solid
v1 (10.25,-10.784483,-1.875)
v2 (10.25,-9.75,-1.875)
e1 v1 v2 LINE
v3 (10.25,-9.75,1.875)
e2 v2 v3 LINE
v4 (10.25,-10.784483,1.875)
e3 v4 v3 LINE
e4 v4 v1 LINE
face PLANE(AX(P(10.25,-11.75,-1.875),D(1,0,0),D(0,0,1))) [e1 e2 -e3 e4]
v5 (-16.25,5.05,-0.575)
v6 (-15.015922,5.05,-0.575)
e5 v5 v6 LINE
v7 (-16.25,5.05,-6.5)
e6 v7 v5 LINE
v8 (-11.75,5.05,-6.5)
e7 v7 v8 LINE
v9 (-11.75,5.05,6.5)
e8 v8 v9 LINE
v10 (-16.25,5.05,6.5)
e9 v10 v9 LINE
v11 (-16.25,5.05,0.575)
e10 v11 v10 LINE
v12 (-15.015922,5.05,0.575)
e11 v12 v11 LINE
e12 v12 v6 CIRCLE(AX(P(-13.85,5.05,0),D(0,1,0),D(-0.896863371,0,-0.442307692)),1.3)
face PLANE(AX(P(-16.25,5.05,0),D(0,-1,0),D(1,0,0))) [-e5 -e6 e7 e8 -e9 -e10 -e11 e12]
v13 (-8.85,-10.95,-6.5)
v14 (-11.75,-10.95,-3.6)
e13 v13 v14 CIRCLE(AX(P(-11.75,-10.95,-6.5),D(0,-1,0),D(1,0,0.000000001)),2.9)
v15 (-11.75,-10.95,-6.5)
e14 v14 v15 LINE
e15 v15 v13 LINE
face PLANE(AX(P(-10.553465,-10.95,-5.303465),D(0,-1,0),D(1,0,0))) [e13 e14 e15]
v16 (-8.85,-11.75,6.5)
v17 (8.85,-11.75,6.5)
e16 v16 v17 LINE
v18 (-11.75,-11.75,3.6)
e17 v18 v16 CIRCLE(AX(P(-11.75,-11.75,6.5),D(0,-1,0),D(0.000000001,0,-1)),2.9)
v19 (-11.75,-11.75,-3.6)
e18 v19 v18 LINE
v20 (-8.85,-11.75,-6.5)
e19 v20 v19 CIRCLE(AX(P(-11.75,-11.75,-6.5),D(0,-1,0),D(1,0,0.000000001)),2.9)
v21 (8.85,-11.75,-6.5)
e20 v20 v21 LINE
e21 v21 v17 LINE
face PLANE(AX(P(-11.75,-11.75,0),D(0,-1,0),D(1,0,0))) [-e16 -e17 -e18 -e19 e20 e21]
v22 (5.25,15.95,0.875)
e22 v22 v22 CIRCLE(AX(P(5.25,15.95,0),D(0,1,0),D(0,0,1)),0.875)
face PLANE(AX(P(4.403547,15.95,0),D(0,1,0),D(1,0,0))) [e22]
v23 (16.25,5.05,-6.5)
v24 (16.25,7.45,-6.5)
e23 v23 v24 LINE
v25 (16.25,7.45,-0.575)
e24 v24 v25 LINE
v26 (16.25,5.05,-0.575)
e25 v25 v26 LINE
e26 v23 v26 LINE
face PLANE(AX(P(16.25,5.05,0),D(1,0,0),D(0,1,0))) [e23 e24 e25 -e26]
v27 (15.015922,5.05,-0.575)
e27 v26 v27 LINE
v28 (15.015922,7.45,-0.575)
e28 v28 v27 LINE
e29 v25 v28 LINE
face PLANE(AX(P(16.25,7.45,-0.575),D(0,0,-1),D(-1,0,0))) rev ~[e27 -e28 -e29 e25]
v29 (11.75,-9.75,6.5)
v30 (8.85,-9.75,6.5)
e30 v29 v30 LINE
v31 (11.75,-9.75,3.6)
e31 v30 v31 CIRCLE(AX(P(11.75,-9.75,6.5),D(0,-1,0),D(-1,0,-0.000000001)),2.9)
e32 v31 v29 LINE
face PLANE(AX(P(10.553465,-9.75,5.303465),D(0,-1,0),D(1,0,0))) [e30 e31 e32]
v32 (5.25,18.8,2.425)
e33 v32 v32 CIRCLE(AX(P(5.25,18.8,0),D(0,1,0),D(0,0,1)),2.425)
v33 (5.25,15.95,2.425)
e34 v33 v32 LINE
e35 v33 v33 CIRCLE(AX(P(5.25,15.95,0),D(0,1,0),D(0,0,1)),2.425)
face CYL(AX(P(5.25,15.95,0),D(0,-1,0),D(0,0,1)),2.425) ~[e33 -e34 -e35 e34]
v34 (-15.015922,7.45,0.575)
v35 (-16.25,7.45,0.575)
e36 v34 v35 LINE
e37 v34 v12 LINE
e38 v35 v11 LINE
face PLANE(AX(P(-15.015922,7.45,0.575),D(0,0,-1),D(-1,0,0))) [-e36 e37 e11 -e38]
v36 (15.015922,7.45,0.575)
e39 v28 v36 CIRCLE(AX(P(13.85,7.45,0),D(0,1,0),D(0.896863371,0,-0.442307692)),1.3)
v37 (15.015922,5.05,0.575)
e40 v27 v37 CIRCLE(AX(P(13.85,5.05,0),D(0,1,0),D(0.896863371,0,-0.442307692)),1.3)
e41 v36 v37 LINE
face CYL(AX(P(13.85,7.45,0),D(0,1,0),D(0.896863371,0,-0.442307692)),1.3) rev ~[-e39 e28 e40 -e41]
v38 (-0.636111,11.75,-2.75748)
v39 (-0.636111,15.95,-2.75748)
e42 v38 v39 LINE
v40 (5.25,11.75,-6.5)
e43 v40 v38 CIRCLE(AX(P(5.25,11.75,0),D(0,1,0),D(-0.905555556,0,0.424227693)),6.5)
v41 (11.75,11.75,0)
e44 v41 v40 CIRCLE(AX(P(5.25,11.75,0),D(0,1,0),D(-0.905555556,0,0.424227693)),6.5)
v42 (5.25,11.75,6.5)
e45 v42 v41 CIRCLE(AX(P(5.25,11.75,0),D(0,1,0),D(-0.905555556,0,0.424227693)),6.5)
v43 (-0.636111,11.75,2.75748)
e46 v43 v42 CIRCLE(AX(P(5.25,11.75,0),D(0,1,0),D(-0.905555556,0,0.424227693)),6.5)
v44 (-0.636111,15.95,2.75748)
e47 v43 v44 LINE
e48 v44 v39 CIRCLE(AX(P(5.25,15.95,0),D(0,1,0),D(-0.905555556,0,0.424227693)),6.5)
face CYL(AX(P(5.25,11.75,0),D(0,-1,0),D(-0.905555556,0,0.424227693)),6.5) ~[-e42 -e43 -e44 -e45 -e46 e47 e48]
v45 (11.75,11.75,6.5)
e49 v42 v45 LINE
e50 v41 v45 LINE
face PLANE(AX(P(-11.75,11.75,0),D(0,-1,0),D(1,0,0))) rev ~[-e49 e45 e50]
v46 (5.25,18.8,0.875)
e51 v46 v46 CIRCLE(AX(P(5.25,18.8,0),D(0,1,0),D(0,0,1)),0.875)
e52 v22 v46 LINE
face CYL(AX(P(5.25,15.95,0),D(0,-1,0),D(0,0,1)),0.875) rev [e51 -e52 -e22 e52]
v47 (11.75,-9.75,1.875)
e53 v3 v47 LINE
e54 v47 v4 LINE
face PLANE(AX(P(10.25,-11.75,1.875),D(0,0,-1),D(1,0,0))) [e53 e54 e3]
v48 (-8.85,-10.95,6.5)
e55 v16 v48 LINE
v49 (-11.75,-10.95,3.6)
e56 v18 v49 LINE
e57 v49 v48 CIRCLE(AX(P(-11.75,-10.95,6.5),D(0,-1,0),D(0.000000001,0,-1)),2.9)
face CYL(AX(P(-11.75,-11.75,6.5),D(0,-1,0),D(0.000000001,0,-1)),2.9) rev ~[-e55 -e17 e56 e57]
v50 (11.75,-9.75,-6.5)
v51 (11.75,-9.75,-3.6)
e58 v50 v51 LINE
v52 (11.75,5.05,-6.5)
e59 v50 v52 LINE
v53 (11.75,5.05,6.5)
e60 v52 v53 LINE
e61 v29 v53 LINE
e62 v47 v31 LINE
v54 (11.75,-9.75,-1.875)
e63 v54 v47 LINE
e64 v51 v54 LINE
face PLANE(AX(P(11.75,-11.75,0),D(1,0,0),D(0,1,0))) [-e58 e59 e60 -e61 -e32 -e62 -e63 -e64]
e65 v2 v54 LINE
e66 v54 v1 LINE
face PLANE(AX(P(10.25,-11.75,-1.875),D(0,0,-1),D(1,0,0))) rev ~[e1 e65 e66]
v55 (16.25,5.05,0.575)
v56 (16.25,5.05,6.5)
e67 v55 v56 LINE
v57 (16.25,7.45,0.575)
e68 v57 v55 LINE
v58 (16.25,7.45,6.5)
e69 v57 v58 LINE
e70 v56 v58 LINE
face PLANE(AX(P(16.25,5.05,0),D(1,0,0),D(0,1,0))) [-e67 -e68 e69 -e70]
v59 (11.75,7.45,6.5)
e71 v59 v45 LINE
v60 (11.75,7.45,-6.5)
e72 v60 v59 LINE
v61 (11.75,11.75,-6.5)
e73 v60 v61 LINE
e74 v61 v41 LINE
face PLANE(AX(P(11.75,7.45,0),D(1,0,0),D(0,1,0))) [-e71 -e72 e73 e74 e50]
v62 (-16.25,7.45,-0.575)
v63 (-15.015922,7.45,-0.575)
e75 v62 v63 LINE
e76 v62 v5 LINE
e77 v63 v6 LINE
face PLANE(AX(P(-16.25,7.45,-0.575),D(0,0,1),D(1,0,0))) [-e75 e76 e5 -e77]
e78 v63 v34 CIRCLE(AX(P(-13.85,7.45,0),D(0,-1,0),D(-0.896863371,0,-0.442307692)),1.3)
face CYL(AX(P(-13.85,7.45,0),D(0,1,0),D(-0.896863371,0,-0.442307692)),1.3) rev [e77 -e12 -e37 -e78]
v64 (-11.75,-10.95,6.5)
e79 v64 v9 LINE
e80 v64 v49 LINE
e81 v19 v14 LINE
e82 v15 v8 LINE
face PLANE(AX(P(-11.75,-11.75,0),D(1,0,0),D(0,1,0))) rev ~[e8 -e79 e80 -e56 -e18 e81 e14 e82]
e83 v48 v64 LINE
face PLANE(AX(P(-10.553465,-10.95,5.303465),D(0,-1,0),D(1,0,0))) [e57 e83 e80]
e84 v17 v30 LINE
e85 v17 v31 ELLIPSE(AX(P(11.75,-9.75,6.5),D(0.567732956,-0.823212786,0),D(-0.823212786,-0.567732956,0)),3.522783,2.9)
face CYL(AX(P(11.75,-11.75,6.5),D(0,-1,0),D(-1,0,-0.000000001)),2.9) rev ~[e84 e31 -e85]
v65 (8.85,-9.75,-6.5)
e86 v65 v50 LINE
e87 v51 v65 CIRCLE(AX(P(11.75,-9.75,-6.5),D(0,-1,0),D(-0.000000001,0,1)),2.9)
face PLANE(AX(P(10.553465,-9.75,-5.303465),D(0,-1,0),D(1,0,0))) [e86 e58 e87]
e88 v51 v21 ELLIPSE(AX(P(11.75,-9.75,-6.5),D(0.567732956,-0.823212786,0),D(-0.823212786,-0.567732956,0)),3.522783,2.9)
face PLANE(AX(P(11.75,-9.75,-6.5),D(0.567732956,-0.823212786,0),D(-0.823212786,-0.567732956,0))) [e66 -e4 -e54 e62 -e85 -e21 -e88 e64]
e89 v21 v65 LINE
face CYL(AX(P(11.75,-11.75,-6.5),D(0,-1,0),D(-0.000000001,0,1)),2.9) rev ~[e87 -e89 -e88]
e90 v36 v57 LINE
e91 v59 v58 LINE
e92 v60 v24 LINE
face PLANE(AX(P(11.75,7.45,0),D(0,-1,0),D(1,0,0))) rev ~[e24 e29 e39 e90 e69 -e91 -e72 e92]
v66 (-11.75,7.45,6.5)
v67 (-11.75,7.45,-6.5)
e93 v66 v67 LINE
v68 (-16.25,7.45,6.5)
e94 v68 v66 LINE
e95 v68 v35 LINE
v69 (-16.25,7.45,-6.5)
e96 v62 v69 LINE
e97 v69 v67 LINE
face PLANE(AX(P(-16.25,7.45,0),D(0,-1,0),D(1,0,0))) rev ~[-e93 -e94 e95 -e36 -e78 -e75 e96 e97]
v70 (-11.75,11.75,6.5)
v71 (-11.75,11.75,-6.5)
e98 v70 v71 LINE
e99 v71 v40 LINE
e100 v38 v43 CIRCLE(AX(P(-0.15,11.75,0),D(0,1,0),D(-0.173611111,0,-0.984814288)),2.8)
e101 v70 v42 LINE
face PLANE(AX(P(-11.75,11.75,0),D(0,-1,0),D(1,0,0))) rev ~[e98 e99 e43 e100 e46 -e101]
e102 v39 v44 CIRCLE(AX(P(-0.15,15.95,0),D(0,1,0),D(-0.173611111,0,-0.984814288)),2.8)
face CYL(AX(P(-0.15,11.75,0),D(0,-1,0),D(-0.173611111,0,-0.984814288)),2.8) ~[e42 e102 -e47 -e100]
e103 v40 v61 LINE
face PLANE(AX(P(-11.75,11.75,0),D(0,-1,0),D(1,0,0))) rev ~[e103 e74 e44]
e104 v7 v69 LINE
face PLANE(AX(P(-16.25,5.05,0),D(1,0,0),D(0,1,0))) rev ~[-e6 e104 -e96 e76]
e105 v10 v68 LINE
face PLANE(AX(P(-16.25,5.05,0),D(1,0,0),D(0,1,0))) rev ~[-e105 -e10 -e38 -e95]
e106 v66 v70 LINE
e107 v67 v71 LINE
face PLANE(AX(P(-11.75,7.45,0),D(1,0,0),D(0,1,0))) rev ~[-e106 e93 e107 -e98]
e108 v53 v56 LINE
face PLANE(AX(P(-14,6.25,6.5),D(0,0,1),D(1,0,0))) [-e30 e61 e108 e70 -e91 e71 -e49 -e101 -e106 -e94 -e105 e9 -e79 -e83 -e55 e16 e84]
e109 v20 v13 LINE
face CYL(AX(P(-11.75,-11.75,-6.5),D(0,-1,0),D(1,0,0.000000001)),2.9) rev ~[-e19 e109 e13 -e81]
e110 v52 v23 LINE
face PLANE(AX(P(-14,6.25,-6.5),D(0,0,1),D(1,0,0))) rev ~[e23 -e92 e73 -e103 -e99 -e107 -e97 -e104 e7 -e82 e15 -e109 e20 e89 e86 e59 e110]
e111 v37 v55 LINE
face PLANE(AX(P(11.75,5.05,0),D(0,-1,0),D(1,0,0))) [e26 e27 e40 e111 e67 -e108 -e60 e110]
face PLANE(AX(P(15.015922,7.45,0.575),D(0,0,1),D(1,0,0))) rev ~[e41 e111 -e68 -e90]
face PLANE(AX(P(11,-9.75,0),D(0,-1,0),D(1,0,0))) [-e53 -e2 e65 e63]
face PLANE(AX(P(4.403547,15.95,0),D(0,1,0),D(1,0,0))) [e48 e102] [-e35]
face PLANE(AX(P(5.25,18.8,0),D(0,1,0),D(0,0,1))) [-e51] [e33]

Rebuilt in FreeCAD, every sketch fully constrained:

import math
import FreeCAD as App
import Part
import Sketcher
from FreeCAD import Vector
Q = App.Units.Quantity


def add_polygon(sketch, points):
    """Adds a closed chain of lines whose ends are joined by coincident constraints."""
    first, n = sketch.GeometryCount, len(points)
    for a, b in zip(points, points[1:] + points[:1]):
        sketch.addGeometry(Part.LineSegment(App.Vector(*a, 0), App.Vector(*b, 0)), False)
    for i in range(n):
        sketch.addConstraint(Sketcher.Constraint("Coincident", first + i, 2, first + (i + 1) % n, 1))

doc = App.newDocument("Part")
body = doc.addObject("PartDesign::Body", "Body")

# Sketch on XY plane
sketch1 = doc.addObject("Sketcher::SketchObject", "Sketch")
body.addObject(sketch1)
sketch1.AttachmentSupport = (doc.XY_Plane, [""])
sketch1.MapMode = "FlatFace"
add_polygon(sketch1, [(-16.25, 7.45), (-16.25, 5.05), (-11.75, 5.05), (-11.75, -11.75), (11.75, -11.75), (11.75, 5.05), (16.25, 5.05), (16.25, 7.45), (11.75, 7.45), (11.75, 11.75), (-11.75, 11.75), (-11.75, 7.45)])  # lines 0-11
sketch1.addConstraint([
    Sketcher.Constraint("Vertical", 0),
    Sketcher.Constraint("Horizontal", 1),
    Sketcher.Constraint("Vertical", 2),
    Sketcher.Constraint("Horizontal", 3),
    Sketcher.Constraint("Vertical", 4),
    Sketcher.Constraint("Horizontal", 5),
    Sketcher.Constraint("Vertical", 6),
    Sketcher.Constraint("Horizontal", 7),
    Sketcher.Constraint("Vertical", 8),
    Sketcher.Constraint("Horizontal", 9),
    Sketcher.Constraint("Vertical", 10),
    Sketcher.Constraint("Horizontal", 11),
    Sketcher.Constraint("Symmetric", 2, 2, 8, 2, -1, 1),
    Sketcher.Constraint("Symmetric", 1, 2, 4, 2, -2),
    Sketcher.Constraint("Symmetric", 7, 2, 10, 2, -2),
    Sketcher.Constraint("Equal", 1, 5),
    Sketcher.Constraint("DistanceX", 1, 1, 1, 2, Q("4.5 mm")),
    Sketcher.Constraint("DistanceX", 3, 1, 3, 2, Q("23.5 mm")),
    Sketcher.Constraint("DistanceY", 0, 2, 0, 1, Q("2.4 mm")),
    Sketcher.Constraint("DistanceY", 2, 2, 2, 1, Q("16.8 mm")),
    Sketcher.Constraint("DistanceY", 8, 1, 8, 2, Q("4.3 mm")),
])
pad1 = doc.addObject("PartDesign::Pad", "Pad")
body.addObject(pad1)
pad1.Profile = sketch1
pad1.Length = 13
pad1.Midplane = True

# Sketch on XZ plane
sketch2 = doc.addObject("Sketcher::SketchObject", "Sketch001")
body.addObject(sketch2)
sketch2.AttachmentSupport = (doc.XZ_Plane, [""])
sketch2.MapMode = "FlatFace"
sketch2.AttachmentOffset = App.Placement(Vector(0, 0, -11.75), App.Rotation())
sketch2.addGeometry([
    Part.ArcOfCircle(Part.Circle(Vector(5.25, 0, 0), Vector(0, 0, 1), 6.5), math.radians(-154.898211), math.radians(154.898211)),
    Part.ArcOfCircle(Part.Circle(Vector(-0.15, 0, 0), Vector(0, 0, 1), 2.8), math.radians(99.997843), math.radians(260.002157)),
], False)
sketch2.addConstraint([
    Sketcher.Constraint("Coincident", 0, 1, 1, 2),
    Sketcher.Constraint("Coincident", 1, 1, 0, 2),
    Sketcher.Constraint("Symmetric", 0, 1, 1, 1, -1),
    Sketcher.Constraint("Radius", 0, Q("6.5 mm")),
    Sketcher.Constraint("Radius", 1, Q("2.8 mm")),
    Sketcher.Constraint("DistanceX", 1, 3, 0, 3, Q("5.4 mm")),
    Sketcher.Constraint("DistanceX", -1, 1, 0, 3, Q("5.25 mm")),
])
pad2 = doc.addObject("PartDesign::Pad", "Pad001")
body.addObject(pad2)
pad2.Profile = sketch2
pad2.Length = 4.2
pad2.Reversed = True

# Sketch on XZ plane
sketch3 = doc.addObject("Sketcher::SketchObject", "Sketch002")
body.addObject(sketch3)
sketch3.AttachmentSupport = (doc.XZ_Plane, [""])
sketch3.MapMode = "FlatFace"
sketch3.AttachmentOffset = App.Placement(Vector(0, 0, -7.45), App.Rotation())
sketch3.addGeometry([
    Part.LineSegment(Vector(16.25, -0.575, 0), Vector(15.015922, -0.575, 0)),
    Part.ArcOfCircle(Part.Circle(Vector(13.85, 0, 0), Vector(0, 0, 1), 1.3), math.radians(26.251214), math.radians(333.748786)),
    Part.LineSegment(Vector(15.015922, 0.575, 0), Vector(16.25, 0.575, 0)),
    Part.LineSegment(Vector(16.25, 0.575, 0), Vector(16.25, -0.575, 0)),
], False)
sketch3.addConstraint([
    Sketcher.Constraint("Coincident", 0, 2, 1, 2),
    Sketcher.Constraint("Coincident", 1, 1, 2, 1),
    Sketcher.Constraint("Coincident", 2, 2, 3, 1),
    Sketcher.Constraint("Coincident", 3, 2, 0, 1),
    Sketcher.Constraint("Horizontal", 0),
    Sketcher.Constraint("Horizontal", 2),
    Sketcher.Constraint("Vertical", 3),
    Sketcher.Constraint("Symmetric", 0, 2, 1, 1, -1),
    Sketcher.Constraint("Radius", 1, Q("1.3 mm")),
    Sketcher.Constraint("DistanceY", 3, 2, 3, 1, Q("1.15 mm")),
    Sketcher.Constraint("DistanceX", 1, 3, 2, 2, Q("2.4 mm")),
    Sketcher.Constraint("DistanceX", -1, 1, 1, 3, Q("13.85 mm")),
])
pocket1 = doc.addObject("PartDesign::Pocket", "Pocket")
body.addObject(pocket1)
pocket1.Profile = sketch3
pocket1.Type = "UpToFirst"
pocket1.Reversed = True

# Sketch on XZ plane
sketch4 = doc.addObject("Sketcher::SketchObject", "Sketch003")
body.addObject(sketch4)
sketch4.AttachmentSupport = (doc.XZ_Plane, [""])
sketch4.MapMode = "FlatFace"
sketch4.AttachmentOffset = App.Placement(Vector(0, 0, -7.45), App.Rotation())
sketch4.addGeometry([
    Part.LineSegment(Vector(-15.015922, -0.575, 0), Vector(-16.25, -0.575, 0)),
    Part.LineSegment(Vector(-16.25, -0.575, 0), Vector(-16.25, 0.575, 0)),
    Part.LineSegment(Vector(-16.25, 0.575, 0), Vector(-15.015922, 0.575, 0)),
    Part.ArcOfCircle(Part.Circle(Vector(-13.85, 0, 0), Vector(0, 0, 1), 1.3), math.radians(-153.748786), math.radians(153.748786)),
], False)
sketch4.addConstraint([
    Sketcher.Constraint("Coincident", 0, 2, 1, 1),
    Sketcher.Constraint("Coincident", 1, 2, 2, 1),
    Sketcher.Constraint("Coincident", 2, 2, 3, 2),
    Sketcher.Constraint("Coincident", 3, 1, 0, 1),
    Sketcher.Constraint("Horizontal", 0),
    Sketcher.Constraint("Vertical", 1),
    Sketcher.Constraint("Horizontal", 2),
    Sketcher.Constraint("Symmetric", 2, 2, 3, 1, -1),
    Sketcher.Constraint("Radius", 3, Q("1.3 mm")),
    Sketcher.Constraint("DistanceY", 1, 1, 1, 2, Q("1.15 mm")),
    Sketcher.Constraint("DistanceX", 0, 2, 3, 3, Q("2.4 mm")),
    Sketcher.Constraint("DistanceX", 3, 3, -1, 1, Q("13.85 mm")),
])
pocket2 = doc.addObject("PartDesign::Pocket", "Pocket001")
body.addObject(pocket2)
pocket2.Profile = sketch4
pocket2.Type = "UpToFirst"
pocket2.Reversed = True

# Sketch on XZ plane
sketch5 = doc.addObject("Sketcher::SketchObject", "Sketch004")
body.addObject(sketch5)
sketch5.AttachmentSupport = (doc.XZ_Plane, [""])
sketch5.MapMode = "FlatFace"
sketch5.AttachmentOffset = App.Placement(Vector(0, 0, 11.75), App.Rotation())
sketch5.addGeometry([
    Part.LineSegment(Vector(-11.75, 6.5, 0), Vector(-11.75, 3.6, 0)),  # 0
    Part.ArcOfCircle(Part.Circle(Vector(-11.75, 6.5, 0), Vector(0, 0, 1), 2.9), math.radians(-90), math.radians(0)),  # 1
    Part.LineSegment(Vector(-8.85, 6.5, 0), Vector(-11.75, 6.5, 0)),  # 2
    Part.ArcOfCircle(Part.Circle(Vector(-11.75, -6.5, 0), Vector(0, 0, 1), 2.9), math.radians(0), math.radians(90)),  # 3
    Part.LineSegment(Vector(-11.75, -3.6, 0), Vector(-11.75, -6.5, 0)),  # 4
    Part.LineSegment(Vector(-11.75, -6.5, 0), Vector(-8.85, -6.5, 0)),  # 5
], False)
sketch5.addConstraint([
    Sketcher.Constraint("Coincident", 0, 2, 1, 1),
    Sketcher.Constraint("Coincident", 1, 2, 2, 1),
    Sketcher.Constraint("Coincident", 2, 2, 0, 1),
    Sketcher.Constraint("Coincident", 3, 2, 4, 1),
    Sketcher.Constraint("Coincident", 4, 2, 5, 1),
    Sketcher.Constraint("Coincident", 5, 2, 3, 1),
    Sketcher.Constraint("Vertical", 0),
    Sketcher.Constraint("Horizontal", 2),
    Sketcher.Constraint("Vertical", 4),
    Sketcher.Constraint("Horizontal", 5),
    Sketcher.Constraint("Coincident", 2, 2, 1, 3),
    Sketcher.Constraint("Coincident", 4, 2, 3, 3),
    Sketcher.Constraint("Equal", 1, 3),
    Sketcher.Constraint("Symmetric", 1, 3, 3, 3, -1),
    Sketcher.Constraint("Radius", 1, Q("2.9 mm")),
    Sketcher.Constraint("DistanceY", 3, 3, 1, 3, Q("13 mm")),
    Sketcher.Constraint("DistanceX", 1, 3, -1, 1, Q("11.75 mm")),
])
pocket3 = doc.addObject("PartDesign::Pocket", "Pocket002")
body.addObject(pocket3)
pocket3.Profile = sketch5
pocket3.Length = 0.8

# Sketch on XZ plane
sketch6 = doc.addObject("Sketcher::SketchObject", "Sketch005")
body.addObject(sketch6)
sketch6.AttachmentSupport = (doc.XZ_Plane, [""])
sketch6.MapMode = "FlatFace"
sketch6.AttachmentOffset = App.Placement(Vector(0, 0, 11.75), App.Rotation())
sketch6.addGeometry(Part.LineSegment(Vector(11.75, 6.5, 0), Vector(8.85, 6.5, 0)), False)  # 0
sketch6.addGeometry(Part.ArcOfCircle(Part.Circle(Vector(11.75, 6.5, 0), Vector(0, 0, 1), 2.9), math.radians(-180), math.radians(-90)), False)  # 1
sketch6.addGeometry(Part.LineSegment(Vector(11.75, 3.6, 0), Vector(11.75, 6.5, 0)), False)  # 2
sketch6.addGeometry(Part.ArcOfCircle(Part.Circle(Vector(11.75, -6.5, 0), Vector(0, 0, 1), 2.9), math.radians(90), math.radians(180)), False)  # 3
sketch6.addGeometry(Part.LineSegment(Vector(8.85, -6.5, 0), Vector(11.75, -6.5, 0)), False)  # 4
sketch6.addGeometry(Part.LineSegment(Vector(11.75, -6.5, 0), Vector(11.75, -3.6, 0)), False)  # 5
add_polygon(sketch6, [(10.25, 1.875), (10.25, -1.875), (11.75, -1.875), (11.75, 1.875)])  # lines 6-9
sketch6.addConstraint([
    Sketcher.Constraint("Coincident", 0, 2, 1, 1),
    Sketcher.Constraint("Coincident", 1, 2, 2, 1),
    Sketcher.Constraint("Coincident", 2, 2, 0, 1),
    Sketcher.Constraint("Coincident", 3, 2, 4, 1),
    Sketcher.Constraint("Coincident", 4, 2, 5, 1),
    Sketcher.Constraint("Coincident", 5, 2, 3, 1),
    Sketcher.Constraint("Horizontal", 0),
    Sketcher.Constraint("Vertical", 2),
    Sketcher.Constraint("Horizontal", 4),
    Sketcher.Constraint("Vertical", 5),
    Sketcher.Constraint("Vertical", 6),
    Sketcher.Constraint("Horizontal", 7),
    Sketcher.Constraint("Vertical", 8),
    Sketcher.Constraint("Horizontal", 9),
    Sketcher.Constraint("Coincident", 2, 2, 1, 3),
    Sketcher.Constraint("Coincident", 4, 2, 3, 3),
    Sketcher.Constraint("Equal", 1, 3),
    Sketcher.Constraint("Symmetric", 1, 3, 3, 3, -1),
    Sketcher.Constraint("Vertical", 5, 2, 7, 2),
    Sketcher.Constraint("Radius", 1, Q("2.9 mm")),
    Sketcher.Constraint("DistanceX", 7, 1, 7, 2, Q("1.5 mm")),
    Sketcher.Constraint("DistanceY", 3, 3, 1, 3, Q("13 mm")),
    Sketcher.Constraint("DistanceY", 6, 2, 6, 1, Q("3.75 mm")),
    Sketcher.Constraint("DistanceX", -1, 1, 1, 3, Q("11.75 mm")),
    Sketcher.Constraint("DistanceY", 6, 2, -1, 1, Q("1.875 mm")),
])
pocket4 = doc.addObject("PartDesign::Pocket", "Pocket003")
body.addObject(pocket4)
pocket4.Profile = sketch6
pocket4.Length = 2

# Sketch on XY plane
sketch7 = doc.addObject("Sketcher::SketchObject", "Sketch006")
body.addObject(sketch7)
sketch7.AttachmentSupport = (doc.XY_Plane, [""])
sketch7.MapMode = "FlatFace"
sketch7.AttachmentOffset = App.Placement(Vector(0, 0, -6.5), App.Rotation())
add_polygon(sketch7, [(8.85, -11.75), (11.75, -9.75), (11.75, -11.75)])  # lines 0-2
sketch7.addConstraint([
    Sketcher.Constraint("Vertical", 1),
    Sketcher.Constraint("Horizontal", 2),
    Sketcher.Constraint("DistanceY", 1, 2, 1, 1, Q("2 mm")),
    Sketcher.Constraint("DistanceX", 2, 2, 2, 1, Q("2.9 mm")),
    Sketcher.Constraint("DistanceX", -1, 1, 0, 2, Q("11.75 mm")),
    Sketcher.Constraint("DistanceY", 0, 2, -1, 1, Q("9.75 mm")),
])
pocket5 = doc.addObject("PartDesign::Pocket", "Pocket004")
body.addObject(pocket5)
pocket5.Profile = sketch7
pocket5.Type = "ThroughAll"
pocket5.Reversed = True

# Sketch on XZ plane
sketch8 = doc.addObject("Sketcher::SketchObject", "Sketch007")
body.addObject(sketch8)
sketch8.AttachmentSupport = (doc.XZ_Plane, [""])
sketch8.MapMode = "FlatFace"
sketch8.AttachmentOffset = App.Placement(Vector(0, 0, -15.95), App.Rotation())
sketch8.addGeometry([
    Part.Circle(Vector(5.25, 0, 0), Vector(0, 0, 1), 2.425),
    Part.Circle(Vector(5.25, 0, 0), Vector(0, 0, 1), 0.875),
], False)
sketch8.addConstraint([
    Sketcher.Constraint("Coincident", 1, 3, 0, 3),
    Sketcher.Constraint("PointOnObject", 0, 3, -1),
    Sketcher.Constraint("Diameter", 0, Q("4.85 mm")),
    Sketcher.Constraint("Diameter", 1, Q("1.75 mm")),
    Sketcher.Constraint("DistanceX", -1, 1, 0, 3, Q("5.25 mm")),
])
pad3 = doc.addObject("PartDesign::Pad", "Pad002")
body.addObject(pad3)
pad3.Profile = sketch8
pad3.Length = 2.85
pad3.Reversed = True

doc.recompute()
